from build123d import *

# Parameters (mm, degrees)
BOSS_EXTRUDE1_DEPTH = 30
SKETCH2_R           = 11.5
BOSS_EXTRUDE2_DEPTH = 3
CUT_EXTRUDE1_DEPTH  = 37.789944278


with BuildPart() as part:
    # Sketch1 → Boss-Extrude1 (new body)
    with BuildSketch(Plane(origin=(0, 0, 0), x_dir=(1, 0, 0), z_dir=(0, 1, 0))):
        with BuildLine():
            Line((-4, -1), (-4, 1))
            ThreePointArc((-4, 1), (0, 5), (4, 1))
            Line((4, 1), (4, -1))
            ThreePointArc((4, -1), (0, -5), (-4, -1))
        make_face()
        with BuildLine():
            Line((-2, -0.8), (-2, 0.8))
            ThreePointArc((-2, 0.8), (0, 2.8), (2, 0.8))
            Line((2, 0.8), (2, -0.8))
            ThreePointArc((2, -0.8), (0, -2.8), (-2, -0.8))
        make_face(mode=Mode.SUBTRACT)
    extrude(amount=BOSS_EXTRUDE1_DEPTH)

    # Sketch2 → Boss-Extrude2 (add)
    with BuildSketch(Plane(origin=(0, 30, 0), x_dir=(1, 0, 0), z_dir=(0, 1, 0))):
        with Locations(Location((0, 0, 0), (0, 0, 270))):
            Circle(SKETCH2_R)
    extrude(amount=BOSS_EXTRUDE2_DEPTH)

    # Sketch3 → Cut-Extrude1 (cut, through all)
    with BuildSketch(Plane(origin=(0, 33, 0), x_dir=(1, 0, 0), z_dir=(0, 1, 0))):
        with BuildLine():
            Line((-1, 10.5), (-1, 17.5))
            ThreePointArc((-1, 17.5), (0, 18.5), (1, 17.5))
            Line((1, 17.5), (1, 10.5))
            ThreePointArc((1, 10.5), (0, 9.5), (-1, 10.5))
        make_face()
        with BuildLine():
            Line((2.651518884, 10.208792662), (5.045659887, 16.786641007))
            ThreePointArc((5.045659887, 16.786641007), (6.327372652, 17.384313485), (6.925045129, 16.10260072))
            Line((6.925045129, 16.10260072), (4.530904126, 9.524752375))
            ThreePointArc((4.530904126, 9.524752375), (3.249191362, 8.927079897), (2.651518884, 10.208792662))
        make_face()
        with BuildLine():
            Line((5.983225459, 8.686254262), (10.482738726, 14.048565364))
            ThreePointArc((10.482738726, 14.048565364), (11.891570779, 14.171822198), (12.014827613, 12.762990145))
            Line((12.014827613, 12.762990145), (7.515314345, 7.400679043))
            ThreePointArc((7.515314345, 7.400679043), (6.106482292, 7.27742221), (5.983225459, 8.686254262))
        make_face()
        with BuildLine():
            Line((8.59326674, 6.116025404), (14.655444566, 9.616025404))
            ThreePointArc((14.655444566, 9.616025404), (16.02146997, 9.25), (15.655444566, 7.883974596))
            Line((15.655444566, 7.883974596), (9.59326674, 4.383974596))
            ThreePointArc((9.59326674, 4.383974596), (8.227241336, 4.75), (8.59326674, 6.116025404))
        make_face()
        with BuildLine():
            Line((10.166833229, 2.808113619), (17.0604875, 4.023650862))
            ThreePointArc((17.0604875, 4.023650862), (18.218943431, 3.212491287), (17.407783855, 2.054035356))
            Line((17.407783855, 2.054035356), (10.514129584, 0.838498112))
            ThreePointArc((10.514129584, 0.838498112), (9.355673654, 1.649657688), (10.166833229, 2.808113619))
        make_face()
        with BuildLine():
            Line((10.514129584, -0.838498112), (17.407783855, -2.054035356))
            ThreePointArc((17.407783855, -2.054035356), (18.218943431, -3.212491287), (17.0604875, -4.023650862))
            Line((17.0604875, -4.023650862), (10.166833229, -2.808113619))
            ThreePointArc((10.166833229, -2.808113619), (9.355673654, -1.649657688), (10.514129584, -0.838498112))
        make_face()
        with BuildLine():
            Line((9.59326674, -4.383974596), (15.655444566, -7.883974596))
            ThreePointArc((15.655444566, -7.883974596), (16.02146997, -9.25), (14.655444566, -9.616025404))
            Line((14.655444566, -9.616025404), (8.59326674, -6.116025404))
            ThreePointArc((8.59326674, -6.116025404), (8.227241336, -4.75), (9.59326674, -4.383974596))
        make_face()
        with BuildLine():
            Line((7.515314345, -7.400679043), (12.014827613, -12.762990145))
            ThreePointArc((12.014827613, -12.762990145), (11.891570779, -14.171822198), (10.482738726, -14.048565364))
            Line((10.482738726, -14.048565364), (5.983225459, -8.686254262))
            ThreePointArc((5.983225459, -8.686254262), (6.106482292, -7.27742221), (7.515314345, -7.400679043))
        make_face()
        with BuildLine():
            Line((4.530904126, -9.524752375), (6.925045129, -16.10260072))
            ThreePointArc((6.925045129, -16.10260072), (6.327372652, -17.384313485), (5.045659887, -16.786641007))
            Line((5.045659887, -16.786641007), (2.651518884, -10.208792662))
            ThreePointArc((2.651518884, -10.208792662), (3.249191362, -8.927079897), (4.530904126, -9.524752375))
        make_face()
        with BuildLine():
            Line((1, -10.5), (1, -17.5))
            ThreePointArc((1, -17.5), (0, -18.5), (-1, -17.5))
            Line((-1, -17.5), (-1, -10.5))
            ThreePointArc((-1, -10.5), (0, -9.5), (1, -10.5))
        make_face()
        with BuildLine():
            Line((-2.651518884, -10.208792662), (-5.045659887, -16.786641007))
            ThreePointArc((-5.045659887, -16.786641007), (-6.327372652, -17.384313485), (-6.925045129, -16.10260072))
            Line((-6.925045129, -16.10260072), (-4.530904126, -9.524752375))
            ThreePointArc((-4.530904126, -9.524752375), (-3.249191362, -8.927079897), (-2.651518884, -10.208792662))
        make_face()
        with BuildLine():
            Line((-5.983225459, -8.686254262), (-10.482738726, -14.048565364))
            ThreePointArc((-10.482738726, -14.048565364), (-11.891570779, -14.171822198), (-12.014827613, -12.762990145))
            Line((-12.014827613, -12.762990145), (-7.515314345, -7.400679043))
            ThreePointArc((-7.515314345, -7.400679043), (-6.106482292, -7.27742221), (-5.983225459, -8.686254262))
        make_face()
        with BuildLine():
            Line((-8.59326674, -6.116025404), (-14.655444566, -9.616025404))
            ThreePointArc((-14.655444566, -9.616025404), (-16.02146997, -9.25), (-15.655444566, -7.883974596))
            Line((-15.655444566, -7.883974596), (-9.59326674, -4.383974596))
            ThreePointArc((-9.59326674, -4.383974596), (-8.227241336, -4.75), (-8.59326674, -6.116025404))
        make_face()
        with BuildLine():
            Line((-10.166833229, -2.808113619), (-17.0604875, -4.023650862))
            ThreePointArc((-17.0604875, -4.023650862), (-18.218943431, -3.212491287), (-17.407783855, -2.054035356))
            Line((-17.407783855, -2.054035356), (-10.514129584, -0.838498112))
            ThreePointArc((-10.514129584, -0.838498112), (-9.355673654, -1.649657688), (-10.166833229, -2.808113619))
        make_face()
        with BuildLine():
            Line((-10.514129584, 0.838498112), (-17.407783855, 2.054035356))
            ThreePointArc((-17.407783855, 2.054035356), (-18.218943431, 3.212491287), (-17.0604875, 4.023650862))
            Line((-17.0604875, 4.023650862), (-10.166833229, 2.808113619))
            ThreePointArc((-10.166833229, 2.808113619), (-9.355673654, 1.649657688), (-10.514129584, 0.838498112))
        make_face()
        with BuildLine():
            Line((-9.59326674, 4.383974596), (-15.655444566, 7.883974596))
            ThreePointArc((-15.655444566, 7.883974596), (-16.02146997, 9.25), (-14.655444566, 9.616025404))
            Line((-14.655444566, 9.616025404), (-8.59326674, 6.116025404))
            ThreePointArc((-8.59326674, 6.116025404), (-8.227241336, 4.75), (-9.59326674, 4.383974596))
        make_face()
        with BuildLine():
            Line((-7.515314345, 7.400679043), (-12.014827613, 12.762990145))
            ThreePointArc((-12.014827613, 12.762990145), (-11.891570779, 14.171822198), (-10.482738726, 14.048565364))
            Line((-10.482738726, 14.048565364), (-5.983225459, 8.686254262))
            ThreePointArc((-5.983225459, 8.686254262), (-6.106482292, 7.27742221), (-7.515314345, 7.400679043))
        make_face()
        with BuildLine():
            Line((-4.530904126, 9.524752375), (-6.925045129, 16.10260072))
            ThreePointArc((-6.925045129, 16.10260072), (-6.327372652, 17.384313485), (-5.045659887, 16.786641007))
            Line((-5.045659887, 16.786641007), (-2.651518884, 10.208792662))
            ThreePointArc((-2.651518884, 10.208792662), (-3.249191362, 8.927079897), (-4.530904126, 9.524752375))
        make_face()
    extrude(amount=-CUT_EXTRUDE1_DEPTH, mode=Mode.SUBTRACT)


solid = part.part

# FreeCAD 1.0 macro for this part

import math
import FreeCAD as App
import Part
import Sketcher
from FreeCAD import Vector
Q = App.Units.Quantity

doc = App.newDocument("Part")
body = doc.addObject("PartDesign::Body", "Body")

# Sketch on XZ plane
sketch1 = body.newObject("Sketcher::SketchObject", "Sketch")
sketch1.AttachmentSupport = (doc.getObject("XZ_Plane"), [""])
sketch1.MapMode = "FlatFace"
sketch1.addGeometry([
    Part.LineSegment(Vector(-4, -1, 0), Vector(-4, 1, 0)),  # 0
    Part.ArcOfCircle(Part.Circle(Vector(0, 1, 0), Vector(0, 0, 1), 4), math.radians(0), math.radians(180)),  # 1
    Part.LineSegment(Vector(4, 1, 0), Vector(4, -1, 0)),  # 2
    Part.ArcOfCircle(Part.Circle(Vector(0, -1, 0), Vector(0, 0, 1), 4), math.radians(180), math.radians(360)),  # 3
    Part.LineSegment(Vector(-2, 0.8, 0), Vector(-2, -0.8, 0)),  # 4
    Part.ArcOfCircle(Part.Circle(Vector(0, -0.8, 0), Vector(0, 0, 1), 2), math.radians(180), math.radians(360)),  # 5
    Part.LineSegment(Vector(2, -0.8, 0), Vector(2, 0.8, 0)),  # 6
    Part.ArcOfCircle(Part.Circle(Vector(0, 0.8, 0), Vector(0, 0, 1), 2), math.radians(0), math.radians(180)),  # 7
], False)
sketch1.addConstraint([
    Sketcher.Constraint("Tangent", 0, 2, 1, 2),
    Sketcher.Constraint("Tangent", 1, 1, 2, 1),
    Sketcher.Constraint("Tangent", 2, 2, 3, 2),
    Sketcher.Constraint("Tangent", 3, 1, 0, 1),
    Sketcher.Constraint("Tangent", 4, 2, 5, 1),
    Sketcher.Constraint("Tangent", 5, 2, 6, 1),
    Sketcher.Constraint("Tangent", 6, 2, 7, 1),
    Sketcher.Constraint("Tangent", 7, 2, 4, 1),
    Sketcher.Constraint("Vertical", 0),
    Sketcher.Constraint("Vertical", 2),
    Sketcher.Constraint("Vertical", 4),
    Sketcher.Constraint("Vertical", 6),
    Sketcher.Constraint("Symmetric", 1, 3, 3, 3, -1, 1),
    Sketcher.Constraint("Symmetric", 5, 3, 7, 3, -1, 1),
    Sketcher.Constraint("Radius", 1, 4.0),
    Sketcher.Constraint("Radius", 5, 2.0),
    Sketcher.Constraint("DistanceY", 0, 1, 0, 2, 2.0),
    Sketcher.Constraint("DistanceY", 4, 2, 4, 1, 1.6),
])
pad1 = body.newObject("PartDesign::Pad", "Pad")
pad1.Profile = sketch1
pad1.Length = 30
pad1.Reversed = True

# Sketch on XZ plane
sketch2 = body.newObject("Sketcher::SketchObject", "Sketch001")
sketch2.AttachmentSupport = (doc.getObject("XZ_Plane"), [""])
sketch2.MapMode = "FlatFace"
sketch2.AttachmentOffset = App.Placement(Vector(0, 0, -30), App.Rotation())
sketch2.addGeometry(Part.Circle(Vector(0, 0, 0), Vector(0, 0, 1), 11.5), False)
sketch2.addConstraint([
    Sketcher.Constraint("Coincident", 0, 3, -1, 1),
    Sketcher.Constraint("Diameter", 0, 23.0),
])
pad2 = body.newObject("PartDesign::Pad", "Pad001")
pad2.Profile = sketch2
pad2.Length = 3
pad2.Reversed = True

# Sketch on XZ plane
sketch3 = body.newObject("Sketcher::SketchObject", "Sketch002")
sketch3.AttachmentSupport = (doc.getObject("XZ_Plane"), [""])
sketch3.MapMode = "FlatFace"
sketch3.AttachmentOffset = App.Placement(Vector(0, 0, -33), App.Rotation())
sketch3.addGeometry([
    Part.LineSegment(Vector(-1, -17.5, 0), Vector(-1, -10.5, 0)),  # 0
    Part.ArcOfCircle(Part.Circle(Vector(0, -10.5, 0), Vector(0, 0, 1), 1), math.radians(0), math.radians(180)),  # 1
    Part.LineSegment(Vector(1, -10.5, 0), Vector(1, -17.5, 0)),  # 2
    Part.ArcOfCircle(Part.Circle(Vector(0, -17.5, 0), Vector(0, 0, 1), 1), math.radians(180), math.radians(360)),  # 3
    Part.LineSegment(Vector(5.04566, -16.786641, 0), Vector(2.651519, -10.208793, 0)),  # 4
    Part.ArcOfCircle(Part.Circle(Vector(3.591212, -9.866773, 0), Vector(0, 0, 1), 1), math.radians(20), math.radians(200)),  # 5
    Part.LineSegment(Vector(4.530904, -9.524752, 0), Vector(6.925045, -16.102601, 0)),  # 6
    Part.ArcOfCircle(Part.Circle(Vector(5.985353, -16.444621, 0), Vector(0, 0, 1), 1), math.radians(-160), math.radians(20)),  # 7
    Part.LineSegment(Vector(10.482739, -14.048565, 0), Vector(5.983225, -8.686254, 0)),  # 8
    Part.ArcOfCircle(Part.Circle(Vector(6.74927, -8.043467, 0), Vector(0, 0, 1), 1), math.radians(40), math.radians(220)),  # 9
    Part.LineSegment(Vector(7.515314, -7.400679, 0), Vector(12.014828, -12.76299, 0)),  # 10
    Part.ArcOfCircle(Part.Circle(Vector(11.248783, -13.405778, 0), Vector(0, 0, 1), 1), math.radians(-140), math.radians(40)),  # 11
    Part.LineSegment(Vector(14.655445, -9.616025, 0), Vector(8.593267, -6.116025, 0)),  # 12
    Part.ArcOfCircle(Part.Circle(Vector(9.093267, -5.25, 0), Vector(0, 0, 1), 1), math.radians(60), math.radians(240)),  # 13
    Part.LineSegment(Vector(9.593267, -4.383975, 0), Vector(15.655445, -7.883975, 0)),  # 14
    Part.ArcOfCircle(Part.Circle(Vector(15.155445, -8.75, 0), Vector(0, 0, 1), 1), math.radians(-120), math.radians(60)),  # 15
    Part.LineSegment(Vector(17.060488, -4.023651, 0), Vector(10.166833, -2.808114, 0)),  # 16
    Part.ArcOfCircle(Part.Circle(Vector(10.340481, -1.823306, 0), Vector(0, 0, 1), 1), math.radians(80), math.radians(260)),  # 17
    Part.LineSegment(Vector(10.51413, -0.838498, 0), Vector(17.407784, -2.054035, 0)),  # 18
    Part.ArcOfCircle(Part.Circle(Vector(17.234136, -3.038843, 0), Vector(0, 0, 1), 1), math.radians(-100), math.radians(80)),  # 19
    Part.LineSegment(Vector(17.407784, 2.054035, 0), Vector(10.51413, 0.838498, 0)),  # 20
    Part.ArcOfCircle(Part.Circle(Vector(10.340481, 1.823306, 0), Vector(0, 0, 1), 1), math.radians(100), math.radians(280)),  # 21
    Part.LineSegment(Vector(10.166833, 2.808114, 0), Vector(17.060488, 4.023651, 0)),  # 22
    Part.ArcOfCircle(Part.Circle(Vector(17.234136, 3.038843, 0), Vector(0, 0, 1), 1), math.radians(-80), math.radians(100)),  # 23
    Part.LineSegment(Vector(15.655445, 7.883975, 0), Vector(9.593267, 4.383975, 0)),  # 24
    Part.ArcOfCircle(Part.Circle(Vector(9.093267, 5.25, 0), Vector(0, 0, 1), 1), math.radians(120), math.radians(300)),  # 25
    Part.LineSegment(Vector(8.593267, 6.116025, 0), Vector(14.655445, 9.616025, 0)),  # 26
    Part.ArcOfCircle(Part.Circle(Vector(15.155445, 8.75, 0), Vector(0, 0, 1), 1), math.radians(-60), math.radians(120)),  # 27
    Part.LineSegment(Vector(12.014828, 12.76299, 0), Vector(7.515314, 7.400679, 0)),  # 28
    Part.ArcOfCircle(Part.Circle(Vector(6.74927, 8.043467, 0), Vector(0, 0, 1), 1), math.radians(140), math.radians(320)),  # 29
    Part.LineSegment(Vector(5.983225, 8.686254, 0), Vector(10.482739, 14.048565, 0)),  # 30
    Part.ArcOfCircle(Part.Circle(Vector(11.248783, 13.405778, 0), Vector(0, 0, 1), 1), math.radians(-40), math.radians(140)),  # 31
    Part.LineSegment(Vector(6.925045, 16.102601, 0), Vector(4.530904, 9.524752, 0)),  # 32
    Part.ArcOfCircle(Part.Circle(Vector(3.591212, 9.866773, 0), Vector(0, 0, 1), 1), math.radians(160), math.radians(340)),  # 33
    Part.LineSegment(Vector(2.651519, 10.208793, 0), Vector(5.04566, 16.786641, 0)),  # 34
    Part.ArcOfCircle(Part.Circle(Vector(5.985353, 16.444621, 0), Vector(0, 0, 1), 1), math.radians(-20), math.radians(160)),  # 35
    Part.LineSegment(Vector(1, 17.5, 0), Vector(1, 10.5, 0)),  # 36
    Part.ArcOfCircle(Part.Circle(Vector(0, 10.5, 0), Vector(0, 0, 1), 1), math.radians(180), math.radians(360)),  # 37
    Part.LineSegment(Vector(-1, 10.5, 0), Vector(-1, 17.5, 0)),  # 38
    Part.ArcOfCircle(Part.Circle(Vector(0, 17.5, 0), Vector(0, 0, 1), 1), math.radians(0), math.radians(180)),  # 39
    Part.LineSegment(Vector(-5.04566, 16.786641, 0), Vector(-2.651519, 10.208793, 0)),  # 40
    Part.ArcOfCircle(Part.Circle(Vector(-3.591212, 9.866773, 0), Vector(0, 0, 1), 1), math.radians(-160), math.radians(20)),  # 41
    Part.LineSegment(Vector(-4.530904, 9.524752, 0), Vector(-6.925045, 16.102601, 0)),  # 42
    Part.ArcOfCircle(Part.Circle(Vector(-5.985353, 16.444621, 0), Vector(0, 0, 1), 1), math.radians(20), math.radians(200)),  # 43
    Part.LineSegment(Vector(-10.482739, 14.048565, 0), Vector(-5.983225, 8.686254, 0)),  # 44
    Part.ArcOfCircle(Part.Circle(Vector(-6.74927, 8.043467, 0), Vector(0, 0, 1), 1), math.radians(-140), math.radians(40)),  # 45
    Part.LineSegment(Vector(-7.515314, 7.400679, 0), Vector(-12.014828, 12.76299, 0)),  # 46
    Part.ArcOfCircle(Part.Circle(Vector(-11.248783, 13.405778, 0), Vector(0, 0, 1), 1), math.radians(40), math.radians(220)),  # 47
    Part.LineSegment(Vector(-14.655445, 9.616025, 0), Vector(-8.593267, 6.116025, 0)),  # 48
    Part.ArcOfCircle(Part.Circle(Vector(-9.093267, 5.25, 0), Vector(0, 0, 1), 1), math.radians(-120), math.radians(60)),  # 49
    Part.LineSegment(Vector(-9.593267, 4.383975, 0), Vector(-15.655445, 7.883975, 0)),  # 50
    Part.ArcOfCircle(Part.Circle(Vector(-15.155445, 8.75, 0), Vector(0, 0, 1), 1), math.radians(60), math.radians(240)),  # 51
    Part.LineSegment(Vector(-17.060488, 4.023651, 0), Vector(-10.166833, 2.808114, 0)),  # 52
    Part.ArcOfCircle(Part.Circle(Vector(-10.340481, 1.823306, 0), Vector(0, 0, 1), 1), math.radians(-100), math.radians(80)),  # 53
    Part.LineSegment(Vector(-10.51413, 0.838498, 0), Vector(-17.407784, 2.054035, 0)),  # 54
    Part.ArcOfCircle(Part.Circle(Vector(-17.234136, 3.038843, 0), Vector(0, 0, 1), 1), math.radians(80), math.radians(260)),  # 55
    Part.LineSegment(Vector(-17.407784, -2.054035, 0), Vector(-10.51413, -0.838498, 0)),  # 56
    Part.ArcOfCircle(Part.Circle(Vector(-10.340481, -1.823306, 0), Vector(0, 0, 1), 1), math.radians(-80), math.radians(100)),  # 57
    Part.LineSegment(Vector(-10.166833, -2.808114, 0), Vector(-17.060488, -4.023651, 0)),  # 58
    Part.ArcOfCircle(Part.Circle(Vector(-17.234136, -3.038843, 0), Vector(0, 0, 1), 1), math.radians(100), math.radians(280)),  # 59
    Part.LineSegment(Vector(-15.655445, -7.883975, 0), Vector(-9.593267, -4.383975, 0)),  # 60
    Part.ArcOfCircle(Part.Circle(Vector(-9.093267, -5.25, 0), Vector(0, 0, 1), 1), math.radians(-60), math.radians(120)),  # 61
    Part.LineSegment(Vector(-8.593267, -6.116025, 0), Vector(-14.655445, -9.616025, 0)),  # 62
    Part.ArcOfCircle(Part.Circle(Vector(-15.155445, -8.75, 0), Vector(0, 0, 1), 1), math.radians(120), math.radians(300)),  # 63
    Part.LineSegment(Vector(-12.014828, -12.76299, 0), Vector(-7.515314, -7.400679, 0)),  # 64
    Part.ArcOfCircle(Part.Circle(Vector(-6.74927, -8.043467, 0), Vector(0, 0, 1), 1), math.radians(-40), math.radians(140)),  # 65
    Part.LineSegment(Vector(-5.983225, -8.686254, 0), Vector(-10.482739, -14.048565, 0)),  # 66
    Part.ArcOfCircle(Part.Circle(Vector(-11.248783, -13.405778, 0), Vector(0, 0, 1), 1), math.radians(140), math.radians(320)),  # 67
    Part.LineSegment(Vector(-6.925045, -16.102601, 0), Vector(-4.530904, -9.524752, 0)),  # 68
    Part.ArcOfCircle(Part.Circle(Vector(-3.591212, -9.866773, 0), Vector(0, 0, 1), 1), math.radians(-20), math.radians(160)),  # 69
    Part.LineSegment(Vector(-2.651519, -10.208793, 0), Vector(-5.04566, -16.786641, 0)),  # 70
    Part.ArcOfCircle(Part.Circle(Vector(-5.985353, -16.444621, 0), Vector(0, 0, 1), 1), math.radians(160), math.radians(340)),  # 71
], False)
sketch3.addConstraint([
    Sketcher.Constraint("Tangent", 0, 2, 1, 2),
    Sketcher.Constraint("Tangent", 1, 1, 2, 1),
    Sketcher.Constraint("Tangent", 2, 2, 3, 2),
    Sketcher.Constraint("Tangent", 3, 1, 0, 1),
    Sketcher.Constraint("Tangent", 4, 2, 5, 2),
    Sketcher.Constraint("Tangent", 5, 1, 6, 1),
    Sketcher.Constraint("Tangent", 6, 2, 7, 2),
    Sketcher.Constraint("Tangent", 7, 1, 4, 1),
    Sketcher.Constraint("Tangent", 8, 2, 9, 2),
    Sketcher.Constraint("Tangent", 9, 1, 10, 1),
    Sketcher.Constraint("Tangent", 10, 2, 11, 2),
    Sketcher.Constraint("Tangent", 11, 1, 8, 1),
    Sketcher.Constraint("Tangent", 12, 2, 13, 2),
    Sketcher.Constraint("Tangent", 13, 1, 14, 1),
    Sketcher.Constraint("Tangent", 14, 2, 15, 2),
    Sketcher.Constraint("Tangent", 15, 1, 12, 1),
    Sketcher.Constraint("Tangent", 16, 2, 17, 2),
    Sketcher.Constraint("Tangent", 17, 1, 18, 1),
    Sketcher.Constraint("Tangent", 18, 2, 19, 2),
    Sketcher.Constraint("Tangent", 19, 1, 16, 1),
    Sketcher.Constraint("Tangent", 20, 2, 21, 2),
    Sketcher.Constraint("Tangent", 21, 1, 22, 1),
    Sketcher.Constraint("Tangent", 22, 2, 23, 2),
    Sketcher.Constraint("Tangent", 23, 1, 20, 1),
    Sketcher.Constraint("Tangent", 24, 2, 25, 2),
    Sketcher.Constraint("Tangent", 25, 1, 26, 1),
    Sketcher.Constraint("Tangent", 26, 2, 27, 2),
    Sketcher.Constraint("Tangent", 27, 1, 24, 1),
    Sketcher.Constraint("Tangent", 28, 2, 29, 2),
    Sketcher.Constraint("Tangent", 29, 1, 30, 1),
    Sketcher.Constraint("Tangent", 30, 2, 31, 2),
    Sketcher.Constraint("Tangent", 31, 1, 28, 1),
    Sketcher.Constraint("Tangent", 32, 2, 33, 2),
    Sketcher.Constraint("Tangent", 33, 1, 34, 1),
    Sketcher.Constraint("Tangent", 34, 2, 35, 2),
    Sketcher.Constraint("Tangent", 35, 1, 32, 1),
    Sketcher.Constraint("Tangent", 36, 2, 37, 2),
    Sketcher.Constraint("Tangent", 37, 1, 38, 1),
    Sketcher.Constraint("Tangent", 38, 2, 39, 2),
    Sketcher.Constraint("Tangent", 39, 1, 36, 1),
    Sketcher.Constraint("Tangent", 40, 2, 41, 2),
    Sketcher.Constraint("Tangent", 41, 1, 42, 1),
    Sketcher.Constraint("Tangent", 42, 2, 43, 2),
    Sketcher.Constraint("Tangent", 43, 1, 40, 1),
    Sketcher.Constraint("Tangent", 44, 2, 45, 2),
    Sketcher.Constraint("Tangent", 45, 1, 46, 1),
    Sketcher.Constraint("Tangent", 46, 2, 47, 2),
    Sketcher.Constraint("Tangent", 47, 1, 44, 1),
    Sketcher.Constraint("Tangent", 48, 2, 49, 2),
    Sketcher.Constraint("Tangent", 49, 1, 50, 1),
    Sketcher.Constraint("Tangent", 50, 2, 51, 2),
    Sketcher.Constraint("Tangent", 51, 1, 48, 1),
    Sketcher.Constraint("Tangent", 52, 2, 53, 2),
    Sketcher.Constraint("Tangent", 53, 1, 54, 1),
    Sketcher.Constraint("Tangent", 54, 2, 55, 2),
    Sketcher.Constraint("Tangent", 55, 1, 52, 1),
    Sketcher.Constraint("Tangent", 56, 2, 57, 2),
    Sketcher.Constraint("Tangent", 57, 1, 58, 1),
    Sketcher.Constraint("Tangent", 58, 2, 59, 2),
    Sketcher.Constraint("Tangent", 59, 1, 56, 1),
    Sketcher.Constraint("Tangent", 60, 2, 61, 2),
    Sketcher.Constraint("Tangent", 61, 1, 62, 1),
    Sketcher.Constraint("Tangent", 62, 2, 63, 2),
    Sketcher.Constraint("Tangent", 63, 1, 60, 1),
    Sketcher.Constraint("Tangent", 64, 2, 65, 2),
    Sketcher.Constraint("Tangent", 65, 1, 66, 1),
    Sketcher.Constraint("Tangent", 66, 2, 67, 2),
    Sketcher.Constraint("Tangent", 67, 1, 64, 1),
    Sketcher.Constraint("Tangent", 68, 2, 69, 2),
    Sketcher.Constraint("Tangent", 69, 1, 70, 1),
    Sketcher.Constraint("Tangent", 70, 2, 71, 2),
    Sketcher.Constraint("Tangent", 71, 1, 68, 1),
    Sketcher.Constraint("Vertical", 0),
    Sketcher.Constraint("Vertical", 2),
    Sketcher.Constraint("Vertical", 36),
    Sketcher.Constraint("Vertical", 38),
    Sketcher.Constraint("Equal", 3, 5),
    Sketcher.Constraint("Equal", 5, 7),
    Sketcher.Constraint("Equal", 7, 9),
    Sketcher.Constraint("Equal", 9, 11),
    Sketcher.Constraint("Equal", 11, 13),
    Sketcher.Constraint("Equal", 13, 15),
    Sketcher.Constraint("Equal", 15, 17),
    Sketcher.Constraint("Equal", 17, 19),
    Sketcher.Constraint("Equal", 19, 21),
    Sketcher.Constraint("Equal", 21, 23),
    Sketcher.Constraint("Equal", 23, 25),
    Sketcher.Constraint("Equal", 25, 27),
    Sketcher.Constraint("Equal", 27, 29),
    Sketcher.Constraint("Equal", 29, 31),
    Sketcher.Constraint("Equal", 31, 33),
    Sketcher.Constraint("Equal", 33, 35),
    Sketcher.Constraint("Equal", 35, 37),
    Sketcher.Constraint("Equal", 39, 41),
    Sketcher.Constraint("Equal", 41, 43),
    Sketcher.Constraint("Equal", 43, 45),
    Sketcher.Constraint("Equal", 45, 47),
    Sketcher.Constraint("Equal", 47, 49),
    Sketcher.Constraint("Equal", 49, 51),
    Sketcher.Constraint("Equal", 51, 53),
    Sketcher.Constraint("Equal", 53, 55),
    Sketcher.Constraint("Equal", 55, 57),
    Sketcher.Constraint("Equal", 57, 59),
    Sketcher.Constraint("Equal", 59, 61),
    Sketcher.Constraint("Equal", 61, 63),
    Sketcher.Constraint("Equal", 63, 65),
    Sketcher.Constraint("Equal", 65, 67),
    Sketcher.Constraint("Equal", 67, 69),
    Sketcher.Constraint("Equal", 69, 71),
    Sketcher.Constraint("Symmetric", 1, 3, 37, 3, -1, 1),
    Sketcher.Constraint("Symmetric", 5, 3, 41, 3, -1, 1),
    Sketcher.Constraint("Symmetric", 7, 3, 43, 3, -1, 1),
    Sketcher.Constraint("Symmetric", 9, 3, 45, 3, -1, 1),
    Sketcher.Constraint("Symmetric", 11, 3, 47, 3, -1, 1),
    Sketcher.Constraint("Symmetric", 13, 3, 49, 3, -1, 1),
    Sketcher.Constraint("Symmetric", 15, 3, 51, 3, -1, 1),
    Sketcher.Constraint("Symmetric", 17, 3, 53, 3, -1, 1),
    Sketcher.Constraint("Symmetric", 19, 3, 55, 3, -1, 1),
    Sketcher.Constraint("Symmetric", 21, 3, 57, 3, -1, 1),
    Sketcher.Constraint("Symmetric", 23, 3, 59, 3, -1, 1),
    Sketcher.Constraint("Symmetric", 25, 3, 61, 3, -1, 1),
    Sketcher.Constraint("Symmetric", 27, 3, 63, 3, -1, 1),
    Sketcher.Constraint("Symmetric", 29, 3, 65, 3, -1, 1),
    Sketcher.Constraint("Symmetric", 31, 3, 67, 3, -1, 1),
    Sketcher.Constraint("Symmetric", 33, 3, 69, 3, -1, 1),
    Sketcher.Constraint("Symmetric", 35, 3, 71, 3, -1, 1),
    Sketcher.Constraint("Symmetric", 33, 3, 41, 3, -2),
    Sketcher.Constraint("Symmetric", 35, 3, 43, 3, -2),
    Sketcher.Constraint("Symmetric", 29, 3, 45, 3, -2),
    Sketcher.Constraint("Symmetric", 31, 3, 47, 3, -2),
    Sketcher.Constraint("Symmetric", 25, 3, 49, 3, -2),
    Sketcher.Constraint("Symmetric", 27, 3, 51, 3, -2),
    Sketcher.Constraint("Symmetric", 21, 3, 53, 3, -2),
    Sketcher.Constraint("Symmetric", 23, 3, 55, 3, -2),
    Sketcher.Constraint("Symmetric", 3, 3, 39, 3, -1),
    Sketcher.Constraint("Equal", 6, 8),
    Sketcher.Constraint("Equal", 10, 12),
    Sketcher.Constraint("Equal", 14, 16),
    Sketcher.Constraint("Radius", 1, 1.0),
    Sketcher.Constraint("DistanceY", 0, 1, 0, 2, 7.0),
    Sketcher.Constraint("Angle", 4, Q("110 deg")),
    Sketcher.Constraint("Angle", 8, Q("130 deg")),
    Sketcher.Constraint("Angle", 12, Q("150 deg")),
    Sketcher.Constraint("Angle", 16, Q("170 deg")),
    Sketcher.Constraint("Distance", 4, 7.0),
    Sketcher.Constraint("DistanceY", 1, 3, -1, 1, 10.5),
    Sketcher.Constraint("DistanceY", 13, 3, -1, 1, 5.25),
    Sketcher.Constraint("DistanceY", 6, 2, -1, 1, 16.102601),
    Sketcher.Constraint("DistanceY", 17, 1, -1, 1, 0.838498),
    Sketcher.Constraint("DistanceX", -1, 1, 5, 3, 3.591212),
    Sketcher.Constraint("DistanceX", -1, 1, 9, 3, 6.74927),
    Sketcher.Constraint("DistanceX", -1, 1, 17, 3, 10.340481),
    Sketcher.Constraint("DistanceY", 9, 1, -1, 1, 7.400679),
    Sketcher.Constraint("DistanceX", -1, 1, 13, 3, 9.093267),
])
pocket1 = body.newObject("PartDesign::Pocket", "Pocket")
pocket1.Profile = sketch3
pocket1.Type = "ThroughAll"
pocket1.Reversed = True

doc.recompute()
